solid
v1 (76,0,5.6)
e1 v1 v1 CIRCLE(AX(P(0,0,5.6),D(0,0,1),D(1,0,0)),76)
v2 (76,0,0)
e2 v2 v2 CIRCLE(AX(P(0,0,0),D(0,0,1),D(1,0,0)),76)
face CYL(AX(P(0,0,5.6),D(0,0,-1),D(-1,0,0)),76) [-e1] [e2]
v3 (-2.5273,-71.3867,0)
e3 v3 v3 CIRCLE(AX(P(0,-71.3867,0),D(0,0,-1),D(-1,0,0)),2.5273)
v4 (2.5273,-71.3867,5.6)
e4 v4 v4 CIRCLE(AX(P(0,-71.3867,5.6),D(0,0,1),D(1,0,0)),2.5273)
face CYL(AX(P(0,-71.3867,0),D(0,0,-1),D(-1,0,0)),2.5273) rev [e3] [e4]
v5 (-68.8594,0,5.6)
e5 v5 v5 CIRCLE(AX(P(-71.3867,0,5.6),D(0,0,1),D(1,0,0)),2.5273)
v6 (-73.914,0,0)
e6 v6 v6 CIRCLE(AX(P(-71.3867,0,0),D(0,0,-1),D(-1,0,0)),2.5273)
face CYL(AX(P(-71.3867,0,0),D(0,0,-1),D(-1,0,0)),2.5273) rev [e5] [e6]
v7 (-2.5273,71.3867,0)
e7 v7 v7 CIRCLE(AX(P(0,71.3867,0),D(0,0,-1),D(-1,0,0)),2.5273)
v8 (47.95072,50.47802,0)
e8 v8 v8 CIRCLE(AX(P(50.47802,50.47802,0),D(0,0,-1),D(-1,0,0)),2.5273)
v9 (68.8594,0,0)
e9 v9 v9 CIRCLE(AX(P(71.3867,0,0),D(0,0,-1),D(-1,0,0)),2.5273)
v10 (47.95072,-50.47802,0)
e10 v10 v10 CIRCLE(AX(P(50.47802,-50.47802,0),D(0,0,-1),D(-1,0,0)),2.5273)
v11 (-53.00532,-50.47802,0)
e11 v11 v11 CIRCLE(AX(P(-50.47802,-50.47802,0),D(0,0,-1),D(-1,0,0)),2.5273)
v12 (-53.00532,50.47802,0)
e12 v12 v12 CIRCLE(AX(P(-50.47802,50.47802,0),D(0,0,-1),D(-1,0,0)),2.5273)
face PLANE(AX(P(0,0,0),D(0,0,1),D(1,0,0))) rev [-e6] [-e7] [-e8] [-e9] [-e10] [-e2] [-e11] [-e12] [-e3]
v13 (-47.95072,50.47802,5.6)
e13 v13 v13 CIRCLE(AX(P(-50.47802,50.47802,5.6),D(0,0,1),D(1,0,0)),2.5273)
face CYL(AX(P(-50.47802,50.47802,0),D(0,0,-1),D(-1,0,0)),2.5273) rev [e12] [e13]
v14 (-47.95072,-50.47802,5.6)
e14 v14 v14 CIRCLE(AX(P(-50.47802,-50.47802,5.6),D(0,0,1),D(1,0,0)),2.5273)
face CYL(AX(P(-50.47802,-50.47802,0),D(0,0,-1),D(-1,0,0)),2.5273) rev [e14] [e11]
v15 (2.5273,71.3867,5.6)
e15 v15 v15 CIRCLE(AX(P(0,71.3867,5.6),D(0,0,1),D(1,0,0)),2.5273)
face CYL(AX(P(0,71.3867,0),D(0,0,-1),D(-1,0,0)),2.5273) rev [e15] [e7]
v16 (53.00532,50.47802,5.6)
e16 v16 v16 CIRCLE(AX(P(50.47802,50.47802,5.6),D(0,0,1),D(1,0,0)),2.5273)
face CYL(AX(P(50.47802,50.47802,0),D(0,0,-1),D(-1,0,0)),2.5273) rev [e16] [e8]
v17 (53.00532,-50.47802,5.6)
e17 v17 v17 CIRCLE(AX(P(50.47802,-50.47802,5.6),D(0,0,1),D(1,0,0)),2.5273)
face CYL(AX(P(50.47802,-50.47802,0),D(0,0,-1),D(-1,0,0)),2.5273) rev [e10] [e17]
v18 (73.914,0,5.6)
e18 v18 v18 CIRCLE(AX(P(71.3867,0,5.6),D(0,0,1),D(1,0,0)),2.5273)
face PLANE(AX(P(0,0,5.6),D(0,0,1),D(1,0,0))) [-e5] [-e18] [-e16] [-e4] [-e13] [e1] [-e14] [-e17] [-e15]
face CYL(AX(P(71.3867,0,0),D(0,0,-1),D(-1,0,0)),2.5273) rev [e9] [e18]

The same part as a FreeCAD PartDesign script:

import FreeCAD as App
import Part
import Sketcher

V = App.Vector

doc = App.newDocument("Part")
body = doc.addObject("PartDesign::Body", "Body")

# Sketch on XY plane
sketch1 = doc.addObject("Sketcher::SketchObject", "Sketch")
body.addObject(sketch1)
sketch1.AttachmentSupport = (doc.XY_Plane, [""])
sketch1.MapMode = "FlatFace"
sketch1.addGeometry(Part.Circle(V(0, 0, 0), V(0, 0, 1), 76), False)
sketch1.addConstraint([
    Sketcher.Constraint("Coincident", 0, 3, -1, 1),
    Sketcher.Constraint("Diameter", 0, 152.0),
])
pad1 = doc.addObject("PartDesign::Pad", "Pad")
body.addObject(pad1)
pad1.Profile = sketch1
pad1.Length = 5.6

# Sketch on XY plane
sketch2 = doc.addObject("Sketcher::SketchObject", "Sketch001")
body.addObject(sketch2)
sketch2.AttachmentSupport = (doc.XY_Plane, [""])
sketch2.MapMode = "FlatFace"
sketch2.addGeometry([
    Part.Circle(V(50.5, 50.5, 0), V(0, 0, 1), 2.5),  # 0
    Part.Circle(V(0, 71.4, 0), V(0, 0, 1), 2.5),  # 1
    Part.Circle(V(-50.5, 50.5, 0), V(0, 0, 1), 2.5),  # 2
    Part.Circle(V(-71.4, 0, 0), V(0, 0, 1), 2.5),  # 3
    Part.Circle(V(-50.5, -50.5, 0), V(0, 0, 1), 2.5),  # 4
    Part.Circle(V(0, -71.4, 0), V(0, 0, 1), 2.5),  # 5
    Part.Circle(V(50.5, -50.5, 0), V(0, 0, 1), 2.5),  # 6
    Part.Circle(V(71.4, 0, 0), V(0, 0, 1), 2.5),  # 7
], False)
sketch2.addConstraint([
    Sketcher.Constraint("Equal", 0, 1),
    Sketcher.Constraint("Equal", 1, 2),
    Sketcher.Constraint("Equal", 2, 3),
    Sketcher.Constraint("Equal", 3, 4),
    Sketcher.Constraint("Equal", 4, 5),
    Sketcher.Constraint("Equal", 5, 6),
    Sketcher.Constraint("Equal", 6, 7),
    Sketcher.Constraint("Symmetric", 0, 3, 4, 3, -1, 1),
    Sketcher.Constraint("Symmetric", 1, 3, 5, 3, -1, 1),
    Sketcher.Constraint("Symmetric", 2, 3, 6, 3, -1, 1),
    Sketcher.Constraint("Symmetric", 3, 3, 7, 3, -1, 1),
    Sketcher.Constraint("Symmetric", 0, 3, 2, 3, -2),
    Sketcher.Constraint("PointOnObject", 1, 3, -2),
    Sketcher.Constraint("PointOnObject", 3, 3, -1),
    Sketcher.Constraint("Diameter", 0, 5.0546),
    Sketcher.Constraint("DistanceY", -1, 1, 1, 3, 71.3867),
    Sketcher.Constraint("DistanceX", 3, 3, -1, 1, 71.3867),
    Sketcher.Constraint("DistanceX", -1, 1, 0, 3, 50.47802),
    Sketcher.Constraint("DistanceY", -1, 1, 0, 3, 50.47802),
])
doc.recompute()
hole = doc.addObject("PartDesign::Hole", "Hole")
body.addObject(hole)
hole.Profile = sketch2
hole.ThreadType = "None"
hole.Diameter = 5.0546
hole.DepthType = "Dimension"
hole.Depth = 8.481445
hole.DrillPoint = "Angled"
hole.DrillPointAngle = 118
hole.Reversed = True

doc.recompute()
